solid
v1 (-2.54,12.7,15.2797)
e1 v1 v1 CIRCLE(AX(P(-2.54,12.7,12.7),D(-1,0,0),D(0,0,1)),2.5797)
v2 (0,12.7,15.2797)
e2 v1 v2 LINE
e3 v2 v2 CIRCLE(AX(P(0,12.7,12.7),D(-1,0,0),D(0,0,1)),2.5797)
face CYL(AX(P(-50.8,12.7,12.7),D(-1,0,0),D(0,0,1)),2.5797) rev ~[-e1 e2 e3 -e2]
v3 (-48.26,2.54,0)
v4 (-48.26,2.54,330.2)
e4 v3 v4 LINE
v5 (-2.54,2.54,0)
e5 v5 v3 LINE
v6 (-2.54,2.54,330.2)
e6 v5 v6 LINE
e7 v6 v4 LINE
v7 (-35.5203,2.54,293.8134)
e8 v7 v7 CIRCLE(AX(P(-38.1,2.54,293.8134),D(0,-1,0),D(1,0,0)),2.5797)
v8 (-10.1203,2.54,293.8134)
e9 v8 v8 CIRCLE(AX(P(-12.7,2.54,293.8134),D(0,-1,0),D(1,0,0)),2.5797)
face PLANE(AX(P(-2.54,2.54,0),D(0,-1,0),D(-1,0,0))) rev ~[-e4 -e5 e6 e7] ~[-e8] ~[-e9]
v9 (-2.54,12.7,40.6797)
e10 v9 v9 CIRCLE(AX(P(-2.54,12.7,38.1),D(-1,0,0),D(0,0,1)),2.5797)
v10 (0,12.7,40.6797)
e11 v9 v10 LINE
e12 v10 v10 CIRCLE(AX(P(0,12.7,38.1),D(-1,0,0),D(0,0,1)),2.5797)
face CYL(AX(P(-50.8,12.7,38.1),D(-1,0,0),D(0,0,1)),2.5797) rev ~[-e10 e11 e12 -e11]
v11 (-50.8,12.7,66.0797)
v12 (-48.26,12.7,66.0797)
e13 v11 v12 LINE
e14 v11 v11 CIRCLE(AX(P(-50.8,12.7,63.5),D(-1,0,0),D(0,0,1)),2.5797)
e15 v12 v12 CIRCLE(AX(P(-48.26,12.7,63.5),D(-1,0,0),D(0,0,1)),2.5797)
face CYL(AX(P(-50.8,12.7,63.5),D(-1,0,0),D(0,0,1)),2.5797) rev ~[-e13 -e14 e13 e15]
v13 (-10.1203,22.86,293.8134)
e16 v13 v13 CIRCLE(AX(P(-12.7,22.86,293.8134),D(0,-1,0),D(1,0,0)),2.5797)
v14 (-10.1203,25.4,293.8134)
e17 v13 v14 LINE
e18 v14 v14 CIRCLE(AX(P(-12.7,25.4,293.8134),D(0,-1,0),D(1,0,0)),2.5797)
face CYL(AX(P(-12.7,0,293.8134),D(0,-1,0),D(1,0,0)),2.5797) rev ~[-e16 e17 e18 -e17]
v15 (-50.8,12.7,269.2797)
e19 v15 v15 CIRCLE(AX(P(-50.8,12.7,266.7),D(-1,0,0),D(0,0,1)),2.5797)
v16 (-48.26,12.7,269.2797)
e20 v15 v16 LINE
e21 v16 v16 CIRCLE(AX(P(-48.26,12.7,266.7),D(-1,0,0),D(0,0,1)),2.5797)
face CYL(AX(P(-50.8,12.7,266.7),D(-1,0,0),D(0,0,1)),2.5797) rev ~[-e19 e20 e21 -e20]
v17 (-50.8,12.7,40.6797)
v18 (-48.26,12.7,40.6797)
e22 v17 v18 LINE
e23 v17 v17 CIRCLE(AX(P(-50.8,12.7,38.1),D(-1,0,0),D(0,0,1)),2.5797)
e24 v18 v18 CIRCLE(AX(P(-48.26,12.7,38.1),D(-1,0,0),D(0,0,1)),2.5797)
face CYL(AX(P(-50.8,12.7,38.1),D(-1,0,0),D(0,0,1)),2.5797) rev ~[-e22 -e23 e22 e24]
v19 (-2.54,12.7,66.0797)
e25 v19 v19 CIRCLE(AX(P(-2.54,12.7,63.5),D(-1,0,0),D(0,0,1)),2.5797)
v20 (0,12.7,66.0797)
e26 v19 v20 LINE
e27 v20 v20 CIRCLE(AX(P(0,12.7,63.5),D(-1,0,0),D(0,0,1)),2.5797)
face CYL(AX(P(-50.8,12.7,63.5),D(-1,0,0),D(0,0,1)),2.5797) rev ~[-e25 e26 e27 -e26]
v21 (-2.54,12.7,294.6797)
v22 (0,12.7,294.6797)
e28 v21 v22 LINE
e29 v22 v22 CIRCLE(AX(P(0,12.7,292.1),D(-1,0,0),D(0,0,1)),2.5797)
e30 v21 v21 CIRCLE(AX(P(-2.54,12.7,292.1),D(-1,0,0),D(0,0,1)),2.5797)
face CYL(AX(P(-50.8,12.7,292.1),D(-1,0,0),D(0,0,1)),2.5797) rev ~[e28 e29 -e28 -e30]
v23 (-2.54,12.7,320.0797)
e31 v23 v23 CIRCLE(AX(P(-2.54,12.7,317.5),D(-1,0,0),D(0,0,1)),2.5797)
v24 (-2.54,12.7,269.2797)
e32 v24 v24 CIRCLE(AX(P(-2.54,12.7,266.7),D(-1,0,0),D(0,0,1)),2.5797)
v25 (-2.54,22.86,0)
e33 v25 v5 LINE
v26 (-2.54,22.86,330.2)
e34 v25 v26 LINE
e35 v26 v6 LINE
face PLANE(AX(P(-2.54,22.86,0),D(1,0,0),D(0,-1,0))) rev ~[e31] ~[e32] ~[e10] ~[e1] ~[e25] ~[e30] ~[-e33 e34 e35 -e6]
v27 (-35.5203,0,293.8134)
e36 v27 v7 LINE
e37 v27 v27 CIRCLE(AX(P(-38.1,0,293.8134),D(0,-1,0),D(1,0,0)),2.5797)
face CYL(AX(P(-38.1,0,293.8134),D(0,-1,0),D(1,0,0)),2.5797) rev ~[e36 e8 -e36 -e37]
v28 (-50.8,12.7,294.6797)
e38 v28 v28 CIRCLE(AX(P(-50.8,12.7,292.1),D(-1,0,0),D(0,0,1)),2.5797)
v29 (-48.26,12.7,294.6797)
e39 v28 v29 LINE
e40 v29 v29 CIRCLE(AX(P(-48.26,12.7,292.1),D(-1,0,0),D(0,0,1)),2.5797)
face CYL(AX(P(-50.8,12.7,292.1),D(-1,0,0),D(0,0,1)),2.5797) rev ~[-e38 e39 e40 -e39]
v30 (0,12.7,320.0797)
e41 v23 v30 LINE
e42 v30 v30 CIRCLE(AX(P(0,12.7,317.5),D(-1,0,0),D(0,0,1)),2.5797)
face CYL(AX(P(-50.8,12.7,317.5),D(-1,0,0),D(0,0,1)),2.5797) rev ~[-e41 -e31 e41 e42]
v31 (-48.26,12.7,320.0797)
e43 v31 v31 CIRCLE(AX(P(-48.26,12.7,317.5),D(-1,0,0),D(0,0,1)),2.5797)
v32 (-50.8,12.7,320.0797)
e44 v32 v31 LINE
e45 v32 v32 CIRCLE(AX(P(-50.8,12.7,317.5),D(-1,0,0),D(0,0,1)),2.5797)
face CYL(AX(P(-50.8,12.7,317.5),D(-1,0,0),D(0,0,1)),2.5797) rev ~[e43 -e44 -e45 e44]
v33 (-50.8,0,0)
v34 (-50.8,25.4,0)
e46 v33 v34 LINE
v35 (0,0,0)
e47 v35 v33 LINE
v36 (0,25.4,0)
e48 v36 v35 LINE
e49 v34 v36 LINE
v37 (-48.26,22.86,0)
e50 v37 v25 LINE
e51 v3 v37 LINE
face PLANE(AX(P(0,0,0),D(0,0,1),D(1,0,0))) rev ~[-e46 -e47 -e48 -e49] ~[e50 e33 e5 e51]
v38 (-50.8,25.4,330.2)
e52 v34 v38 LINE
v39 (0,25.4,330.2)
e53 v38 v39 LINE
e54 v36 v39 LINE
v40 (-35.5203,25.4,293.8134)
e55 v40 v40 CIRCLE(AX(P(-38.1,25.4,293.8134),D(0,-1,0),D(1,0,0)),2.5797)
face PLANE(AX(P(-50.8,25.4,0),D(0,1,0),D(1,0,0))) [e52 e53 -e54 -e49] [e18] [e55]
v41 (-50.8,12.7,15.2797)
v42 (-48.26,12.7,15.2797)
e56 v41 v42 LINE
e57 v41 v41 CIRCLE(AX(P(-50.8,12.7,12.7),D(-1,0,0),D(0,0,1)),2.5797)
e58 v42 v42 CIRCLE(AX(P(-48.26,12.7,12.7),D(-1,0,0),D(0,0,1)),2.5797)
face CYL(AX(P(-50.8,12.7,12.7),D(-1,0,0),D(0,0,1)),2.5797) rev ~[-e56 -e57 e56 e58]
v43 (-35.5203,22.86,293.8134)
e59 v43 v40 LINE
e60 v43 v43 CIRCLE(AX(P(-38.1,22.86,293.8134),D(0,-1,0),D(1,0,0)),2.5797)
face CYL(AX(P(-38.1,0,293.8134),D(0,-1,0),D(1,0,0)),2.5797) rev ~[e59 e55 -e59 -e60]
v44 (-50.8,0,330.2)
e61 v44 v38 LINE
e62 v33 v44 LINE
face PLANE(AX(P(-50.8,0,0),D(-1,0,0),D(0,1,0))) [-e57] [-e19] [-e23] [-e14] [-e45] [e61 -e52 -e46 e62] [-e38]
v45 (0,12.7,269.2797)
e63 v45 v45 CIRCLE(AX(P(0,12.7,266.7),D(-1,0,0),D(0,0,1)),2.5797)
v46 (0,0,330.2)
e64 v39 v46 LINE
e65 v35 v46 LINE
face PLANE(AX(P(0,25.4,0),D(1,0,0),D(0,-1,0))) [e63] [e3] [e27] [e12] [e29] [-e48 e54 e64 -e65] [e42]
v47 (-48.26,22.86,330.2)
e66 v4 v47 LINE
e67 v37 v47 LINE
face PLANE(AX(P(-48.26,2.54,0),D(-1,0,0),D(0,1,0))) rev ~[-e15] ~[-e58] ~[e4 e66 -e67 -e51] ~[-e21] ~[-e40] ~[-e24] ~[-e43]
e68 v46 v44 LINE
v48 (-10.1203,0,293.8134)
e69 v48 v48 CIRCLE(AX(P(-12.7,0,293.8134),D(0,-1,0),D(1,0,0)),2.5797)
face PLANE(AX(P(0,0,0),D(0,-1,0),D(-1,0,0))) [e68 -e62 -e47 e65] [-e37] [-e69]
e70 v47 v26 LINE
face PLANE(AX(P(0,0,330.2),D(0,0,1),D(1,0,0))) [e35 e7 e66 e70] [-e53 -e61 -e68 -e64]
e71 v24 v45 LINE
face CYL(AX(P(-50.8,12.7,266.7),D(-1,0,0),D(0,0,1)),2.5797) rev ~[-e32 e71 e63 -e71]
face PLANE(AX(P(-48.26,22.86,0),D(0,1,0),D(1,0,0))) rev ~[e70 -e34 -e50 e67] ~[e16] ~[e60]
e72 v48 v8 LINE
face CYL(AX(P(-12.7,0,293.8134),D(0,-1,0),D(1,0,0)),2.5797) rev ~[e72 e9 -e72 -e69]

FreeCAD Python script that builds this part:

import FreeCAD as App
import Part
import Sketcher
from FreeCAD import Vector
Q = App.Units.Quantity


def add_polygon(sketch, points):
    """Adds a closed chain of lines whose ends are joined by coincident constraints."""
    first, n = sketch.GeometryCount, len(points)
    for a, b in zip(points, points[1:] + points[:1]):
        sketch.addGeometry(Part.LineSegment(App.Vector(*a, 0), App.Vector(*b, 0)), False)
    for i in range(n):
        sketch.addConstraint(Sketcher.Constraint("Coincident", first + i, 2, first + (i + 1) % n, 1))

doc = App.newDocument("Part")
body = doc.addObject("PartDesign::Body", "Body")

# Sketch on XY plane
sketch1 = body.newObject("Sketcher::SketchObject", "Sketch")
sketch1.AttachmentSupport = (doc.getObject("XY_Plane"), [""])
sketch1.MapMode = "FlatFace"
add_polygon(sketch1, [(-51, 0), (0, 0), (0, 25), (-51, 25)])  # lines 0-3
add_polygon(sketch1, [(-48, 3), (-48, 23), (-3, 23), (-3, 3)])  # lines 4-7
sketch1.addConstraint(Sketcher.Constraint("Horizontal", 0))
sketch1.addConstraint(Sketcher.Constraint("Vertical", 1))
sketch1.addConstraint(Sketcher.Constraint("Horizontal", 2))
sketch1.addConstraint(Sketcher.Constraint("Vertical", 3))
sketch1.addConstraint(Sketcher.Constraint("Vertical", 4))
sketch1.addConstraint(Sketcher.Constraint("Horizontal", 5))
sketch1.addConstraint(Sketcher.Constraint("Vertical", 6))
sketch1.addConstraint(Sketcher.Constraint("Horizontal", 7))
sketch1.addConstraint(Sketcher.Constraint("Coincident", 0, 2, -1, 1))
sketch1.addConstraint(Sketcher.Constraint("DistanceX", 0, 1, 0, 2, Q("2 in")))
sketch1.addConstraint(Sketcher.Constraint("DistanceY", 1, 1, 1, 2, Q("1 in")))
sketch1.addConstraint(Sketcher.Constraint("DistanceX", 5, 2, -1, 1, Q("0.1 in")))
sketch1.addConstraint(Sketcher.Constraint("DistanceY", -1, 1, 6, 2, Q("0.1 in")))
sketch1.addConstraint(Sketcher.Constraint("DistanceX", 2, 2, 4, 2, Q("0.1 in")))
sketch1.addConstraint(Sketcher.Constraint("DistanceY", 4, 2, 2, 2, Q("0.1 in")))
pad1 = body.newObject("PartDesign::Pad", "Pad")
pad1.Profile = sketch1
pad1.Length = Q("13 in")

# Sketch on YZ plane
sketch2 = body.newObject("Sketcher::SketchObject", "Sketch001")
sketch2.AttachmentSupport = (doc.getObject("YZ_Plane"), [""])
sketch2.MapMode = "FlatFace"
sketch2.AttachmentOffset = App.Placement(Vector(0, 0, -2 * 25.4), App.Rotation())
sketch2.addGeometry(Part.Circle(Vector(12.7, 12.7, 0), Vector(0, 0, 1), 2.6), False)
sketch2.addGeometry(Part.Circle(Vector(12.7, 38.1, 0), Vector(0, 0, 1), 2.6), False)
sketch2.addGeometry(Part.Circle(Vector(12.7, 63.5, 0), Vector(0, 0, 1), 2.6), False)
sketch2.addGeometry(Part.Circle(Vector(12.7, 266.7, 0), Vector(0, 0, 1), 2.6), False)
sketch2.addGeometry(Part.Circle(Vector(12.7, 292.1, 0), Vector(0, 0, 1), 2.6), False)
sketch2.addGeometry(Part.Circle(Vector(12.7, 317.5, 0), Vector(0, 0, 1), 2.6), False)
sketch2.addConstraint(Sketcher.Constraint("Equal", 0, 1))
sketch2.addConstraint(Sketcher.Constraint("Equal", 1, 2))
sketch2.addConstraint(Sketcher.Constraint("Equal", 2, 3))
sketch2.addConstraint(Sketcher.Constraint("Equal", 3, 4))
sketch2.addConstraint(Sketcher.Constraint("Equal", 4, 5))
sketch2.addConstraint(Sketcher.Constraint("Vertical", 0, 3, 1, 3))
sketch2.addConstraint(Sketcher.Constraint("Vertical", 1, 3, 2, 3))
sketch2.addConstraint(Sketcher.Constraint("Vertical", 2, 3, 3, 3))
sketch2.addConstraint(Sketcher.Constraint("Vertical", 3, 3, 4, 3))
sketch2.addConstraint(Sketcher.Constraint("Vertical", 4, 3, 5, 3))
sketch2.addConstraint(Sketcher.Constraint("Diameter", 0, Q("0.203126 in")))
sketch2.addConstraint(Sketcher.Constraint("DistanceY", 0, 3, 1, 3, Q("1 in")))
sketch2.addConstraint(Sketcher.Constraint("DistanceY", 1, 3, 2, 3, Q("1 in")))
sketch2.addConstraint(Sketcher.Constraint("DistanceY", 3, 3, 4, 3, Q("1 in")))
sketch2.addConstraint(Sketcher.Constraint("DistanceY", 4, 3, 5, 3, Q("1 in")))
sketch2.addConstraint(Sketcher.Constraint("DistanceX", -1, 1, 0, 3, Q("0.5 in")))
sketch2.addConstraint(Sketcher.Constraint("DistanceY", -1, 1, 0, 3, Q("0.5 in")))
sketch2.addConstraint(Sketcher.Constraint("DistanceY", 2, 3, 3, 3, Q("8 in")))
pocket1 = body.newObject("PartDesign::Pocket", "Pocket")
pocket1.Profile = sketch2
pocket1.Length = Q("11 in")
pocket1.Reversed = True

# Sketch on XZ plane
sketch3 = body.newObject("Sketcher::SketchObject", "Sketch002")
sketch3.AttachmentSupport = (doc.getObject("XZ_Plane"), [""])
sketch3.MapMode = "FlatFace"
sketch3.addGeometry(Part.Circle(Vector(-38.1, 293.8, 0), Vector(0, 0, 1), 2.6), False)
sketch3.addGeometry(Part.Circle(Vector(-12.7, 293.8, 0), Vector(0, 0, 1), 2.6), False)
sketch3.addConstraint(Sketcher.Constraint("Equal", 0, 1))
sketch3.addConstraint(Sketcher.Constraint("Horizontal", 0, 3, 1, 3))
sketch3.addConstraint(Sketcher.Constraint("Diameter", 0, Q("0.203126 in")))
sketch3.addConstraint(Sketcher.Constraint("DistanceX", 0, 3, 1, 3, Q("1 in")))
sketch3.addConstraint(Sketcher.Constraint("DistanceX", 1, 3, -1, 1, Q("0.5 in")))
sketch3.addConstraint(Sketcher.Constraint("DistanceY", -1, 1, 0, 3, 293.8134))
pocket2 = body.newObject("PartDesign::Pocket", "Pocket001")
pocket2.Profile = sketch3
pocket2.Length = Q("11 in")

doc.recompute()
